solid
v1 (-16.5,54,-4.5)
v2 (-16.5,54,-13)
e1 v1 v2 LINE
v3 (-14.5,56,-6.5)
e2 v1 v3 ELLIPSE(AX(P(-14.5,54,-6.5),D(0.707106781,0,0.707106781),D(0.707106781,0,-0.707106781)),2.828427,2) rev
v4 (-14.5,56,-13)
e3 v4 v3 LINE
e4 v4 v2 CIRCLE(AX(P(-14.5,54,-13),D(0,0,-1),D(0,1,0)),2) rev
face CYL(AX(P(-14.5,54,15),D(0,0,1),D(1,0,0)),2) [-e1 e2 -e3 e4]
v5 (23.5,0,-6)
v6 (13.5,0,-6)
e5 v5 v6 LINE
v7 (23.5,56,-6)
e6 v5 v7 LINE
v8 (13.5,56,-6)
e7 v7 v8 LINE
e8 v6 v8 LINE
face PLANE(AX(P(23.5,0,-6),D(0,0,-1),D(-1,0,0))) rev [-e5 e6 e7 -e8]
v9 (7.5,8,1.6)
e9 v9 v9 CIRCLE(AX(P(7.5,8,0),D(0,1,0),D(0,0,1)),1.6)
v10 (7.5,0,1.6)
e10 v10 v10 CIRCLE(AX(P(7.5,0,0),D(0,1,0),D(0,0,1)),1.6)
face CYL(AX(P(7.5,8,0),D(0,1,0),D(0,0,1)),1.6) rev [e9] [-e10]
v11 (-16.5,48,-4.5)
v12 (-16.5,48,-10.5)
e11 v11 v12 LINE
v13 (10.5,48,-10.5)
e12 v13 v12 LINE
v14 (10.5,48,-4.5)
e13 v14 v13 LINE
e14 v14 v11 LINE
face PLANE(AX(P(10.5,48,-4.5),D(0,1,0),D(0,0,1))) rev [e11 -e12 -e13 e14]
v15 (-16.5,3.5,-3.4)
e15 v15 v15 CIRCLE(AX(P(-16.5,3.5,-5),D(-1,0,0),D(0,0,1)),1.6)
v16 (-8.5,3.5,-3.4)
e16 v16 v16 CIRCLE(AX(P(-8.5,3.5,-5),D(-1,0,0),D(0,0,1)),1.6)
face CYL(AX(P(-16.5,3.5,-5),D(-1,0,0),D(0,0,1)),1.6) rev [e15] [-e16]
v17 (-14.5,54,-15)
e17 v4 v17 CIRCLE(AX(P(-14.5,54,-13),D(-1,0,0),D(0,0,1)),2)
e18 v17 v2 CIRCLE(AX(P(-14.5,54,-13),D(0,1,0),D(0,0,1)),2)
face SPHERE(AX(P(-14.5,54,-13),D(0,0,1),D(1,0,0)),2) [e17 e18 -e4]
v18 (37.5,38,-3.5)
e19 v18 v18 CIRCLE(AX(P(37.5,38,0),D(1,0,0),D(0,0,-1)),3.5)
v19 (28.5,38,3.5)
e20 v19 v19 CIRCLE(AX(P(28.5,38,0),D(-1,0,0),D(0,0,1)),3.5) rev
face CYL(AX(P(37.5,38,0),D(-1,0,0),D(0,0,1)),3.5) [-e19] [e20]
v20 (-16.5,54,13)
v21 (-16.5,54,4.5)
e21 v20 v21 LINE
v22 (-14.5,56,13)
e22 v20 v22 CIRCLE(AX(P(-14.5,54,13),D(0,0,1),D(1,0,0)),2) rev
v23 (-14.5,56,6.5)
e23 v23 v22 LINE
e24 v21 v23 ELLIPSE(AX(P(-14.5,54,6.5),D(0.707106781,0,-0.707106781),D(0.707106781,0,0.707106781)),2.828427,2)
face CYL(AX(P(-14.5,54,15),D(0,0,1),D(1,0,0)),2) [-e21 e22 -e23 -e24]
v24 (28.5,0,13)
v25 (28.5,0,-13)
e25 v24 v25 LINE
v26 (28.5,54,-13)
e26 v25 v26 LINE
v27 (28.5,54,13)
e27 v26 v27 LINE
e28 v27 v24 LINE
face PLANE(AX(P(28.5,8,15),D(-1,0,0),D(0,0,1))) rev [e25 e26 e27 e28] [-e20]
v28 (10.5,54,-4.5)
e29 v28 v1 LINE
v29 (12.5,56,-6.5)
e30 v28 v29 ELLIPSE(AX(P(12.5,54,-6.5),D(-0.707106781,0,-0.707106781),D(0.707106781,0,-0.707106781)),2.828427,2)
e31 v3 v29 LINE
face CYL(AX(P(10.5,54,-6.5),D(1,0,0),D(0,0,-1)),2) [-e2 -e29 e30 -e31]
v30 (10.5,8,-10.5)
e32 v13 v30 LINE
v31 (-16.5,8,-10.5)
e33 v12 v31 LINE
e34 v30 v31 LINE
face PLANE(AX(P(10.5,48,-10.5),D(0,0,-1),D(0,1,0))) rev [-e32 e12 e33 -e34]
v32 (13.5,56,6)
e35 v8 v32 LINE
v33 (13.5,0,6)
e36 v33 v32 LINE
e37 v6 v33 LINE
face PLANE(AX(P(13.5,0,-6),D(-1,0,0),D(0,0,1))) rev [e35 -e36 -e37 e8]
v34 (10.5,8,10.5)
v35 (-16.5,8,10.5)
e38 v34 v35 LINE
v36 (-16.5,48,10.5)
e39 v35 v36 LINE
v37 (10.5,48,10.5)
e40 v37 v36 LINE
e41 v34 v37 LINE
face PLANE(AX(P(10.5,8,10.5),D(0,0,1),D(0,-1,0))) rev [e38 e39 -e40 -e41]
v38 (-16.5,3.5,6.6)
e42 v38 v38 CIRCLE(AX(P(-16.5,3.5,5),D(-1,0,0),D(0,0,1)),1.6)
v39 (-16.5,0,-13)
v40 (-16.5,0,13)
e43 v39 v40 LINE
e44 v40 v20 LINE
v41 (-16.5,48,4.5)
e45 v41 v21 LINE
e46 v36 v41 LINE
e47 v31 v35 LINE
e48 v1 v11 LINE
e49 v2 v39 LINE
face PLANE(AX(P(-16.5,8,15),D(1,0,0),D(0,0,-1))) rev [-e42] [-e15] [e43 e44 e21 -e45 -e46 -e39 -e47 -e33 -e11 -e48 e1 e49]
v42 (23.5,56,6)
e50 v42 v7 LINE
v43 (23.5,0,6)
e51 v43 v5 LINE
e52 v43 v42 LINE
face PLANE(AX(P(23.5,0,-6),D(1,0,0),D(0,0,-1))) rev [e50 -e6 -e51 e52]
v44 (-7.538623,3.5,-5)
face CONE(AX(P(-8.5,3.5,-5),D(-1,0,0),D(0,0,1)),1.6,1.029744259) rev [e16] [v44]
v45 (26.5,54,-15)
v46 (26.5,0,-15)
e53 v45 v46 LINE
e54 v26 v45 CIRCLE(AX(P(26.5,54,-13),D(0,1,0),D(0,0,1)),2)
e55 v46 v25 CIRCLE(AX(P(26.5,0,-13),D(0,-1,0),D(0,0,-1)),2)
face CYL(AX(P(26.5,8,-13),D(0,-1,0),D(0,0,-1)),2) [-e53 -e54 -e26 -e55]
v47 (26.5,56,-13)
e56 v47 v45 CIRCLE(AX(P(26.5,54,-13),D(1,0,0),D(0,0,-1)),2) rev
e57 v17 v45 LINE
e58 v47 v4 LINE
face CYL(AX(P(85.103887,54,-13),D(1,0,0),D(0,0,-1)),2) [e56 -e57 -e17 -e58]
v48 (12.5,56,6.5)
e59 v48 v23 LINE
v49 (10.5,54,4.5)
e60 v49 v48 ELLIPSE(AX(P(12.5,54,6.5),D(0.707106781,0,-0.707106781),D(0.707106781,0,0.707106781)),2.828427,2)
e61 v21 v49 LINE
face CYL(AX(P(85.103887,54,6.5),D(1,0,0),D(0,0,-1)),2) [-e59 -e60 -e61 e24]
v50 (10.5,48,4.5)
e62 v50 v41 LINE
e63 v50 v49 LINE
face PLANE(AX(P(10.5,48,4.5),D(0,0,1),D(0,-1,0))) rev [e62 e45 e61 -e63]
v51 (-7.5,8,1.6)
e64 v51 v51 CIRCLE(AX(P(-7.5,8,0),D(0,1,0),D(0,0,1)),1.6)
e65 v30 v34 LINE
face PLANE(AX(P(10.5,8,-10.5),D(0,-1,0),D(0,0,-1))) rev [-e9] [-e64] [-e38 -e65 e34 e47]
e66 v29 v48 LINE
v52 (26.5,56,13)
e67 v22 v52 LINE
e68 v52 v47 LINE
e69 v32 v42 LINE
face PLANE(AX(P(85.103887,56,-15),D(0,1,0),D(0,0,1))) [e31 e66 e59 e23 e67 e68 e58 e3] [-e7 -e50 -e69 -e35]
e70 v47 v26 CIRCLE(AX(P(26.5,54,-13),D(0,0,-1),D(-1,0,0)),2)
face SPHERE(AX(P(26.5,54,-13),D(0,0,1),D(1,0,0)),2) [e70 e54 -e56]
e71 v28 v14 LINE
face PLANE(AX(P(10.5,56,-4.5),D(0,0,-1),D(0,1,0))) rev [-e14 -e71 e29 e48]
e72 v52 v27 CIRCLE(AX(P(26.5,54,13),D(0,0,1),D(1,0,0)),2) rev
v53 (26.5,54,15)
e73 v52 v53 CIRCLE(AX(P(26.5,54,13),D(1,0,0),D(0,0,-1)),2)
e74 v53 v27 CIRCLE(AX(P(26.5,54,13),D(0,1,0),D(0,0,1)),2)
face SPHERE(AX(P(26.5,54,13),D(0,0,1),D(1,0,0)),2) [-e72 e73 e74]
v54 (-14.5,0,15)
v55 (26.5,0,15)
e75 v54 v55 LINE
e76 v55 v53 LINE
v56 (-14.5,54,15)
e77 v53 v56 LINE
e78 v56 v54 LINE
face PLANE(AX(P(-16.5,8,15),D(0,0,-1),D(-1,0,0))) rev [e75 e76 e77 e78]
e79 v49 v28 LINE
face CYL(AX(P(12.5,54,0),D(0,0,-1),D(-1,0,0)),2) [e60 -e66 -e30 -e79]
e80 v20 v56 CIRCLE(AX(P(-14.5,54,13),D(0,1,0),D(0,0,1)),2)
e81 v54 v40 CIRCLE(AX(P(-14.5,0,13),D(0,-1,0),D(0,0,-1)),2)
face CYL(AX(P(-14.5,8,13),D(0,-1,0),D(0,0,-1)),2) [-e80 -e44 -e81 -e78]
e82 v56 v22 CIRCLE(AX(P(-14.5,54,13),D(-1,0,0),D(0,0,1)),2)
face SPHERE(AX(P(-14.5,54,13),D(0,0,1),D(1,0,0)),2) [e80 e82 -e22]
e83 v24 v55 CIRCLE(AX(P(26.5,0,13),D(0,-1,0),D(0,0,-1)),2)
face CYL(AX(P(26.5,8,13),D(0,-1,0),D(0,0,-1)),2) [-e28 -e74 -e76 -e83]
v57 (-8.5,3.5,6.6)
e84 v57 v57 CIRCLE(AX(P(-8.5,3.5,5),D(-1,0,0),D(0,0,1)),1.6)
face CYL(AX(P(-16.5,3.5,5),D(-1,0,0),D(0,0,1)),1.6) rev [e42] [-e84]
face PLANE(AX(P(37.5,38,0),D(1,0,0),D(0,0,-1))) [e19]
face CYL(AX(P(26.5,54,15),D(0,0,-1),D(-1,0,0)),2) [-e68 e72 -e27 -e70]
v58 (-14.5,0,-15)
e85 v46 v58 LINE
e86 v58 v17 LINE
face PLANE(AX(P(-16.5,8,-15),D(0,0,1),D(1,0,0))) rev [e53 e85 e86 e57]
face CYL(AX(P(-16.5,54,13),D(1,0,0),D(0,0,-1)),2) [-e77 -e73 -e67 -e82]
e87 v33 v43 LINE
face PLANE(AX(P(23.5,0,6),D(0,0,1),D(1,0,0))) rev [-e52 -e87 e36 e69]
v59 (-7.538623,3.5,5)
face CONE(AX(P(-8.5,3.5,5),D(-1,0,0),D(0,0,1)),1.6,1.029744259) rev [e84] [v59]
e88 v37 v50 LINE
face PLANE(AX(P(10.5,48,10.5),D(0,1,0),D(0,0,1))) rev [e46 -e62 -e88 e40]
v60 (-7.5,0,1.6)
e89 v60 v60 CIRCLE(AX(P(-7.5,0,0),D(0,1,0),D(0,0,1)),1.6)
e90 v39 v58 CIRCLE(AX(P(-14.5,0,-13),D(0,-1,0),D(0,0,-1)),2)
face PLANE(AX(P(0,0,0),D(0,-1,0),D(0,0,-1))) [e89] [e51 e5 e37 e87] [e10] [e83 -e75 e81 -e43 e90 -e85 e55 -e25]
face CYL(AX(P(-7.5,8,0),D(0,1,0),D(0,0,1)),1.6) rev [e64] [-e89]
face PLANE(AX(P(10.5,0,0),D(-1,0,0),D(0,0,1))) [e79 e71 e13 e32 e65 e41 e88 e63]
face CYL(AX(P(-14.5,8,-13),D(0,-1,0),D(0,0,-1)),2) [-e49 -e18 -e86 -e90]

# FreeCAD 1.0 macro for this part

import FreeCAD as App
import Part
import Sketcher

V = App.Vector


def edges_at(feature, points):
    """Names of the edges that pass closest to the given points."""
    edges = feature.Shape.Edges
    near = lambda p: min(range(len(edges)), key=lambda i: edges[i].distToShape(Part.Vertex(*p))[0])
    return sorted({f"Edge{near(p) + 1}" for p in points})

doc = App.newDocument("Part")
params = doc.addObject("Spreadsheet::Sheet", "Params")
for row, (alias, value) in enumerate([
    ("sketch1_width", "45 mm"),
    ("sketch1_height", "30 mm"),
    ("pad1_length", "8 mm"),
    ("sketch2_width", "48 mm"),
    ("sketch2_height", "30 mm"),
    ("pad2_length", "45 mm"),
    ("sketch3_width", "8 mm"),
    ("sketch3_width2", "40 mm"),
    ("sketch3_height", "6 mm"),
    ("sketch3_height2", "9 mm"),
    ("pocket1_length", "27 mm"),
    ("fillet_radius", "2 mm"),
    ("sketch4_diameter", "7 mm"),
    ("pad3_length", "9 mm"),
    ("sketch5_diameter", "3.2 mm"),
    ("hole_diameter", "3.2 mm"),
    ("sketch6_diameter", "3.2 mm"),
    ("hole2_diameter", "3.2 mm"),
    ("hole2_depth", "8 mm"),
    ("sketch7_width", "10 mm"),
    ("sketch7_height", "12 mm"),
], start=1):
    params.set(f"A{row}", alias)
    params.set(f"B{row}", "=" + value)
    params.setAlias(f"B{row}", alias)

body = doc.addObject("PartDesign::Body", "Body")

# Sketch on XZ plane
sketch1 = body.newObject("Sketcher::SketchObject", "Sketch")
sketch1.AttachmentSupport = (doc.getObject("XZ_Plane"), [""])
sketch1.MapMode = "FlatFace"
sketch1.addGeometry([
    Part.LineSegment(V(-16, -15, 0), V(-16, 15, 0)),
    Part.LineSegment(V(-16, 15, 0), V(28, 15, 0)),
    Part.LineSegment(V(28, 15, 0), V(28, -15, 0)),
    Part.LineSegment(V(28, -15, 0), V(-16, -15, 0)),
], False)
sketch1.addConstraint([
    Sketcher.Constraint("Coincident", 0, 2, 1, 1),
    Sketcher.Constraint("Coincident", 1, 2, 2, 1),
    Sketcher.Constraint("Coincident", 2, 2, 3, 1),
    Sketcher.Constraint("Coincident", 3, 2, 0, 1),
    Sketcher.Constraint("Vertical", 0),
    Sketcher.Constraint("Horizontal", 1),
    Sketcher.Constraint("Vertical", 2),
    Sketcher.Constraint("Horizontal", 3),
    Sketcher.Constraint("DistanceX", 1, 1, 1, 2, 45.0),
    Sketcher.Constraint("DistanceY", 0, 1, 0, 2, 30.0),
    Sketcher.Constraint("DistanceY", -1, 1, 0, 2, 15.0),
    Sketcher.Constraint("DistanceX", 0, 2, -1, 1, 16.5),
])
sketch1.setExpression("Constraints[8]", "Params.sketch1_width")
sketch1.setExpression("Constraints[9]", "Params.sketch1_height")
pad1 = body.newObject("PartDesign::Pad", "Pad")
pad1.Profile = sketch1
pad1.setExpression("Length", "Params.pad1_length")
pad1.Reversed = True

# Sketch on YZ plane
sketch2 = body.newObject("Sketcher::SketchObject", "Sketch001")
sketch2.AttachmentSupport = (doc.getObject("YZ_Plane"), [""])
sketch2.MapMode = "FlatFace"
sketch2.AttachmentOffset = App.Placement(V(0, 0, -16.5), App.Rotation())
sketch2.addGeometry([
    Part.LineSegment(V(56, -15, 0), V(8, -15, 0)),
    Part.LineSegment(V(8, -15, 0), V(8, 15, 0)),
    Part.LineSegment(V(8, 15, 0), V(56, 15, 0)),
    Part.LineSegment(V(56, 15, 0), V(56, -15, 0)),
], False)
sketch2.addConstraint([
    Sketcher.Constraint("Coincident", 0, 2, 1, 1),
    Sketcher.Constraint("Coincident", 1, 2, 2, 1),
    Sketcher.Constraint("Coincident", 2, 2, 3, 1),
    Sketcher.Constraint("Coincident", 3, 2, 0, 1),
    Sketcher.Constraint("Horizontal", 0),
    Sketcher.Constraint("Vertical", 1),
    Sketcher.Constraint("Horizontal", 2),
    Sketcher.Constraint("Vertical", 3),
    Sketcher.Constraint("DistanceX", 0, 2, 0, 1, 48.0),
    Sketcher.Constraint("DistanceY", 1, 1, 1, 2, 30.0),
    Sketcher.Constraint("DistanceX", -1, 1, 0, 2, 8.0),
    Sketcher.Constraint("DistanceY", 0, 2, -1, 1, 15.0),
])
sketch2.setExpression("Constraints[8]", "Params.sketch2_width")
sketch2.setExpression("Constraints[9]", "Params.sketch2_height")
pad2 = body.newObject("PartDesign::Pad", "Pad001")
pad2.Profile = sketch2
pad2.setExpression("Length", "Params.pad2_length")

# Sketch on YZ plane
sketch3 = body.newObject("Sketcher::SketchObject", "Sketch002")
sketch3.AttachmentSupport = (doc.getObject("YZ_Plane"), [""])
sketch3.MapMode = "FlatFace"
sketch3.AttachmentOffset = App.Placement(V(0, 0, -16.5), App.Rotation())
sketch3.addGeometry([
    Part.LineSegment(V(48, 10, 0), V(48, 4, 0)),  # 0
    Part.LineSegment(V(48, 4, 0), V(56, 4, 0)),  # 1
    Part.LineSegment(V(56, 4, 0), V(56, -4, 0)),  # 2
    Part.LineSegment(V(56, -4, 0), V(48, -4, 0)),  # 3
    Part.LineSegment(V(48, -4, 0), V(48, -10, 0)),  # 4
    Part.LineSegment(V(48, -10, 0), V(8, -10, 0)),  # 5
    Part.LineSegment(V(8, -10, 0), V(8, 10, 0)),  # 6
    Part.LineSegment(V(8, 10, 0), V(48, 10, 0)),  # 7
], False)
sketch3.addConstraint([
    Sketcher.Constraint("Coincident", 0, 2, 1, 1),
    Sketcher.Constraint("Coincident", 1, 2, 2, 1),
    Sketcher.Constraint("Coincident", 2, 2, 3, 1),
    Sketcher.Constraint("Coincident", 3, 2, 4, 1),
    Sketcher.Constraint("Coincident", 4, 2, 5, 1),
    Sketcher.Constraint("Coincident", 5, 2, 6, 1),
    Sketcher.Constraint("Coincident", 6, 2, 7, 1),
    Sketcher.Constraint("Coincident", 7, 2, 0, 1),
    Sketcher.Constraint("Vertical", 0),
    Sketcher.Constraint("Horizontal", 1),
    Sketcher.Constraint("Vertical", 2),
    Sketcher.Constraint("Horizontal", 3),
    Sketcher.Constraint("Vertical", 4),
    Sketcher.Constraint("Horizontal", 5),
    Sketcher.Constraint("Vertical", 6),
    Sketcher.Constraint("Horizontal", 7),
    Sketcher.Constraint("Symmetric", 0, 2, 3, 2, -1),
    Sketcher.Constraint("Equal", 0, 4),
    Sketcher.Constraint("DistanceX", 1, 1, 1, 2, 8.0),
    Sketcher.Constraint("DistanceX", 5, 2, 5, 1, 40.0),
    Sketcher.Constraint("DistanceY", 0, 2, 0, 1, 6.0),
    Sketcher.Constraint("DistanceY", 2, 2, 2, 1, 9.0),
    Sketcher.Constraint("DistanceX", -1, 1, 0, 2, 48.0),
])
sketch3.setExpression("Constraints[18]", "Params.sketch3_width")
sketch3.setExpression("Constraints[19]", "Params.sketch3_width2")
sketch3.setExpression("Constraints[20]", "Params.sketch3_height")
sketch3.setExpression("Constraints[21]", "Params.sketch3_height2")
pocket1 = body.newObject("PartDesign::Pocket", "Pocket")
pocket1.Profile = sketch3
pocket1.setExpression("Length", "Params.pocket1_length")
pocket1.Reversed = True
doc.recompute()

fillet = body.newObject("PartDesign::Fillet", "Fillet")
fillet.Base = (pocket1, edges_at(pocket1, [
    (6, 56, -15),
    (6, 56, 15),
    (-16.5, 56, 9.75),
    (28.5, 56, 0),
    (-16.5, 56, -9.75),
    (10.5, 56, 0),
    (-3, 56, -4.5),
    (-3, 56, 4.5),
    (28.5, 28, 15),
    (-16.5, 28, 15),
    (-16.5, 28, -15),
    (28.5, 28, -15),
]))
fillet.setExpression("Radius", "Params.fillet_radius")

# Sketch on YZ plane
sketch4 = body.newObject("Sketcher::SketchObject", "Sketch003")
sketch4.AttachmentSupport = (doc.getObject("YZ_Plane"), [""])
sketch4.MapMode = "FlatFace"
sketch4.AttachmentOffset = App.Placement(V(0, 0, 28.5), App.Rotation())
sketch4.addGeometry(Part.Circle(V(38, 0, 0), V(0, 0, 1), 3.5), False)
sketch4.addConstraint([
    Sketcher.Constraint("PointOnObject", 0, 3, -1),
    Sketcher.Constraint("Diameter", 0, 7.0),
    Sketcher.Constraint("DistanceX", -1, 1, 0, 3, 38.0),
])
sketch4.setExpression("Constraints[1]", "Params.sketch4_diameter")
pad3 = body.newObject("PartDesign::Pad", "Pad002")
pad3.Profile = sketch4
pad3.setExpression("Length", "Params.pad3_length")

# Sketch on XZ plane
sketch5 = body.newObject("Sketcher::SketchObject", "Sketch004")
sketch5.AttachmentSupport = (doc.getObject("XZ_Plane"), [""])
sketch5.MapMode = "FlatFace"
sketch5.AttachmentOffset = App.Placement(V(0, 0, -8), App.Rotation())
sketch5.addGeometry([
    Part.Circle(V(-7.5, 0, 0), V(0, 0, 1), 1.6),
    Part.Circle(V(7.5, 0, 0), V(0, 0, 1), 1.6),
], False)
sketch5.addConstraint([
    Sketcher.Constraint("Equal", 0, 1),
    Sketcher.Constraint("Symmetric", 0, 3, 1, 3, -1, 1),
    Sketcher.Constraint("PointOnObject", 0, 3, -1),
    Sketcher.Constraint("Diameter", 0, 3.2),
    Sketcher.Constraint("DistanceX", 0, 3, 1, 3, 15.0),
])
sketch5.setExpression("Constraints[3]", "Params.sketch5_diameter")
doc.recompute()
hole = body.newObject("PartDesign::Hole", "Hole")
hole.Profile = sketch5
hole.ThreadType = "None"
hole.setExpression("Diameter", "Params.hole_diameter")
hole.DepthType = "ThroughAll"
hole.Reversed = True

# Sketch on YZ plane
sketch6 = body.newObject("Sketcher::SketchObject", "Sketch005")
sketch6.AttachmentSupport = (doc.getObject("YZ_Plane"), [""])
sketch6.MapMode = "FlatFace"
sketch6.AttachmentOffset = App.Placement(V(0, 0, -16.5), App.Rotation())
sketch6.addGeometry([
    Part.Circle(V(3.5, -5, 0), V(0, 0, 1), 1.6),
    Part.Circle(V(3.5, 5, 0), V(0, 0, 1), 1.6),
], False)
sketch6.addConstraint([
    Sketcher.Constraint("Equal", 0, 1),
    Sketcher.Constraint("Symmetric", 0, 3, 1, 3, -1),
    Sketcher.Constraint("Diameter", 0, 3.2),
    Sketcher.Constraint("DistanceY", 0, 3, -1, 1, 5.0),
    Sketcher.Constraint("DistanceX", -1, 1, 0, 3, 3.5),
])
sketch6.setExpression("Constraints[2]", "Params.sketch6_diameter")
doc.recompute()
hole2 = body.newObject("PartDesign::Hole", "Hole001")
hole2.Profile = sketch6
hole2.ThreadType = "None"
hole2.setExpression("Diameter", "Params.hole2_diameter")
hole2.DepthType = "Dimension"
hole2.setExpression("Depth", "Params.hole2_depth")
hole2.DrillPoint = "Angled"
hole2.DrillPointAngle = 118
hole2.Reversed = True

# Sketch on XZ plane
sketch7 = body.newObject("Sketcher::SketchObject", "Sketch006")
sketch7.AttachmentSupport = (doc.getObject("XZ_Plane"), [""])
sketch7.MapMode = "FlatFace"
sketch7.AttachmentOffset = App.Placement(V(0, 0, -56), App.Rotation())
sketch7.addGeometry([
    Part.LineSegment(V(14, -6, 0), V(14, 6, 0)),
    Part.LineSegment(V(14, 6, 0), V(24, 6, 0)),
    Part.LineSegment(V(24, 6, 0), V(24, -6, 0)),
    Part.LineSegment(V(24, -6, 0), V(14, -6, 0)),
], False)
sketch7.addConstraint([
    Sketcher.Constraint("Coincident", 0, 2, 1, 1),
    Sketcher.Constraint("Coincident", 1, 2, 2, 1),
    Sketcher.Constraint("Coincident", 2, 2, 3, 1),
    Sketcher.Constraint("Coincident", 3, 2, 0, 1),
    Sketcher.Constraint("Vertical", 0),
    Sketcher.Constraint("Horizontal", 1),
    Sketcher.Constraint("Vertical", 2),
    Sketcher.Constraint("Horizontal", 3),
    Sketcher.Constraint("DistanceX", 1, 1, 1, 2, 10.0),
    Sketcher.Constraint("DistanceY", 0, 1, 0, 2, 12.0),
    Sketcher.Constraint("DistanceY", -1, 1, 0, 2, 6.0),
    Sketcher.Constraint("DistanceX", -1, 1, 0, 2, 13.5),
])
sketch7.setExpression("Constraints[8]", "Params.sketch7_width")
sketch7.setExpression("Constraints[9]", "Params.sketch7_height")
pocket2 = body.newObject("PartDesign::Pocket", "Pocket001")
pocket2.Profile = sketch7
pocket2.Type = "ThroughAll"
pocket2.Reversed = True

doc.recompute()
